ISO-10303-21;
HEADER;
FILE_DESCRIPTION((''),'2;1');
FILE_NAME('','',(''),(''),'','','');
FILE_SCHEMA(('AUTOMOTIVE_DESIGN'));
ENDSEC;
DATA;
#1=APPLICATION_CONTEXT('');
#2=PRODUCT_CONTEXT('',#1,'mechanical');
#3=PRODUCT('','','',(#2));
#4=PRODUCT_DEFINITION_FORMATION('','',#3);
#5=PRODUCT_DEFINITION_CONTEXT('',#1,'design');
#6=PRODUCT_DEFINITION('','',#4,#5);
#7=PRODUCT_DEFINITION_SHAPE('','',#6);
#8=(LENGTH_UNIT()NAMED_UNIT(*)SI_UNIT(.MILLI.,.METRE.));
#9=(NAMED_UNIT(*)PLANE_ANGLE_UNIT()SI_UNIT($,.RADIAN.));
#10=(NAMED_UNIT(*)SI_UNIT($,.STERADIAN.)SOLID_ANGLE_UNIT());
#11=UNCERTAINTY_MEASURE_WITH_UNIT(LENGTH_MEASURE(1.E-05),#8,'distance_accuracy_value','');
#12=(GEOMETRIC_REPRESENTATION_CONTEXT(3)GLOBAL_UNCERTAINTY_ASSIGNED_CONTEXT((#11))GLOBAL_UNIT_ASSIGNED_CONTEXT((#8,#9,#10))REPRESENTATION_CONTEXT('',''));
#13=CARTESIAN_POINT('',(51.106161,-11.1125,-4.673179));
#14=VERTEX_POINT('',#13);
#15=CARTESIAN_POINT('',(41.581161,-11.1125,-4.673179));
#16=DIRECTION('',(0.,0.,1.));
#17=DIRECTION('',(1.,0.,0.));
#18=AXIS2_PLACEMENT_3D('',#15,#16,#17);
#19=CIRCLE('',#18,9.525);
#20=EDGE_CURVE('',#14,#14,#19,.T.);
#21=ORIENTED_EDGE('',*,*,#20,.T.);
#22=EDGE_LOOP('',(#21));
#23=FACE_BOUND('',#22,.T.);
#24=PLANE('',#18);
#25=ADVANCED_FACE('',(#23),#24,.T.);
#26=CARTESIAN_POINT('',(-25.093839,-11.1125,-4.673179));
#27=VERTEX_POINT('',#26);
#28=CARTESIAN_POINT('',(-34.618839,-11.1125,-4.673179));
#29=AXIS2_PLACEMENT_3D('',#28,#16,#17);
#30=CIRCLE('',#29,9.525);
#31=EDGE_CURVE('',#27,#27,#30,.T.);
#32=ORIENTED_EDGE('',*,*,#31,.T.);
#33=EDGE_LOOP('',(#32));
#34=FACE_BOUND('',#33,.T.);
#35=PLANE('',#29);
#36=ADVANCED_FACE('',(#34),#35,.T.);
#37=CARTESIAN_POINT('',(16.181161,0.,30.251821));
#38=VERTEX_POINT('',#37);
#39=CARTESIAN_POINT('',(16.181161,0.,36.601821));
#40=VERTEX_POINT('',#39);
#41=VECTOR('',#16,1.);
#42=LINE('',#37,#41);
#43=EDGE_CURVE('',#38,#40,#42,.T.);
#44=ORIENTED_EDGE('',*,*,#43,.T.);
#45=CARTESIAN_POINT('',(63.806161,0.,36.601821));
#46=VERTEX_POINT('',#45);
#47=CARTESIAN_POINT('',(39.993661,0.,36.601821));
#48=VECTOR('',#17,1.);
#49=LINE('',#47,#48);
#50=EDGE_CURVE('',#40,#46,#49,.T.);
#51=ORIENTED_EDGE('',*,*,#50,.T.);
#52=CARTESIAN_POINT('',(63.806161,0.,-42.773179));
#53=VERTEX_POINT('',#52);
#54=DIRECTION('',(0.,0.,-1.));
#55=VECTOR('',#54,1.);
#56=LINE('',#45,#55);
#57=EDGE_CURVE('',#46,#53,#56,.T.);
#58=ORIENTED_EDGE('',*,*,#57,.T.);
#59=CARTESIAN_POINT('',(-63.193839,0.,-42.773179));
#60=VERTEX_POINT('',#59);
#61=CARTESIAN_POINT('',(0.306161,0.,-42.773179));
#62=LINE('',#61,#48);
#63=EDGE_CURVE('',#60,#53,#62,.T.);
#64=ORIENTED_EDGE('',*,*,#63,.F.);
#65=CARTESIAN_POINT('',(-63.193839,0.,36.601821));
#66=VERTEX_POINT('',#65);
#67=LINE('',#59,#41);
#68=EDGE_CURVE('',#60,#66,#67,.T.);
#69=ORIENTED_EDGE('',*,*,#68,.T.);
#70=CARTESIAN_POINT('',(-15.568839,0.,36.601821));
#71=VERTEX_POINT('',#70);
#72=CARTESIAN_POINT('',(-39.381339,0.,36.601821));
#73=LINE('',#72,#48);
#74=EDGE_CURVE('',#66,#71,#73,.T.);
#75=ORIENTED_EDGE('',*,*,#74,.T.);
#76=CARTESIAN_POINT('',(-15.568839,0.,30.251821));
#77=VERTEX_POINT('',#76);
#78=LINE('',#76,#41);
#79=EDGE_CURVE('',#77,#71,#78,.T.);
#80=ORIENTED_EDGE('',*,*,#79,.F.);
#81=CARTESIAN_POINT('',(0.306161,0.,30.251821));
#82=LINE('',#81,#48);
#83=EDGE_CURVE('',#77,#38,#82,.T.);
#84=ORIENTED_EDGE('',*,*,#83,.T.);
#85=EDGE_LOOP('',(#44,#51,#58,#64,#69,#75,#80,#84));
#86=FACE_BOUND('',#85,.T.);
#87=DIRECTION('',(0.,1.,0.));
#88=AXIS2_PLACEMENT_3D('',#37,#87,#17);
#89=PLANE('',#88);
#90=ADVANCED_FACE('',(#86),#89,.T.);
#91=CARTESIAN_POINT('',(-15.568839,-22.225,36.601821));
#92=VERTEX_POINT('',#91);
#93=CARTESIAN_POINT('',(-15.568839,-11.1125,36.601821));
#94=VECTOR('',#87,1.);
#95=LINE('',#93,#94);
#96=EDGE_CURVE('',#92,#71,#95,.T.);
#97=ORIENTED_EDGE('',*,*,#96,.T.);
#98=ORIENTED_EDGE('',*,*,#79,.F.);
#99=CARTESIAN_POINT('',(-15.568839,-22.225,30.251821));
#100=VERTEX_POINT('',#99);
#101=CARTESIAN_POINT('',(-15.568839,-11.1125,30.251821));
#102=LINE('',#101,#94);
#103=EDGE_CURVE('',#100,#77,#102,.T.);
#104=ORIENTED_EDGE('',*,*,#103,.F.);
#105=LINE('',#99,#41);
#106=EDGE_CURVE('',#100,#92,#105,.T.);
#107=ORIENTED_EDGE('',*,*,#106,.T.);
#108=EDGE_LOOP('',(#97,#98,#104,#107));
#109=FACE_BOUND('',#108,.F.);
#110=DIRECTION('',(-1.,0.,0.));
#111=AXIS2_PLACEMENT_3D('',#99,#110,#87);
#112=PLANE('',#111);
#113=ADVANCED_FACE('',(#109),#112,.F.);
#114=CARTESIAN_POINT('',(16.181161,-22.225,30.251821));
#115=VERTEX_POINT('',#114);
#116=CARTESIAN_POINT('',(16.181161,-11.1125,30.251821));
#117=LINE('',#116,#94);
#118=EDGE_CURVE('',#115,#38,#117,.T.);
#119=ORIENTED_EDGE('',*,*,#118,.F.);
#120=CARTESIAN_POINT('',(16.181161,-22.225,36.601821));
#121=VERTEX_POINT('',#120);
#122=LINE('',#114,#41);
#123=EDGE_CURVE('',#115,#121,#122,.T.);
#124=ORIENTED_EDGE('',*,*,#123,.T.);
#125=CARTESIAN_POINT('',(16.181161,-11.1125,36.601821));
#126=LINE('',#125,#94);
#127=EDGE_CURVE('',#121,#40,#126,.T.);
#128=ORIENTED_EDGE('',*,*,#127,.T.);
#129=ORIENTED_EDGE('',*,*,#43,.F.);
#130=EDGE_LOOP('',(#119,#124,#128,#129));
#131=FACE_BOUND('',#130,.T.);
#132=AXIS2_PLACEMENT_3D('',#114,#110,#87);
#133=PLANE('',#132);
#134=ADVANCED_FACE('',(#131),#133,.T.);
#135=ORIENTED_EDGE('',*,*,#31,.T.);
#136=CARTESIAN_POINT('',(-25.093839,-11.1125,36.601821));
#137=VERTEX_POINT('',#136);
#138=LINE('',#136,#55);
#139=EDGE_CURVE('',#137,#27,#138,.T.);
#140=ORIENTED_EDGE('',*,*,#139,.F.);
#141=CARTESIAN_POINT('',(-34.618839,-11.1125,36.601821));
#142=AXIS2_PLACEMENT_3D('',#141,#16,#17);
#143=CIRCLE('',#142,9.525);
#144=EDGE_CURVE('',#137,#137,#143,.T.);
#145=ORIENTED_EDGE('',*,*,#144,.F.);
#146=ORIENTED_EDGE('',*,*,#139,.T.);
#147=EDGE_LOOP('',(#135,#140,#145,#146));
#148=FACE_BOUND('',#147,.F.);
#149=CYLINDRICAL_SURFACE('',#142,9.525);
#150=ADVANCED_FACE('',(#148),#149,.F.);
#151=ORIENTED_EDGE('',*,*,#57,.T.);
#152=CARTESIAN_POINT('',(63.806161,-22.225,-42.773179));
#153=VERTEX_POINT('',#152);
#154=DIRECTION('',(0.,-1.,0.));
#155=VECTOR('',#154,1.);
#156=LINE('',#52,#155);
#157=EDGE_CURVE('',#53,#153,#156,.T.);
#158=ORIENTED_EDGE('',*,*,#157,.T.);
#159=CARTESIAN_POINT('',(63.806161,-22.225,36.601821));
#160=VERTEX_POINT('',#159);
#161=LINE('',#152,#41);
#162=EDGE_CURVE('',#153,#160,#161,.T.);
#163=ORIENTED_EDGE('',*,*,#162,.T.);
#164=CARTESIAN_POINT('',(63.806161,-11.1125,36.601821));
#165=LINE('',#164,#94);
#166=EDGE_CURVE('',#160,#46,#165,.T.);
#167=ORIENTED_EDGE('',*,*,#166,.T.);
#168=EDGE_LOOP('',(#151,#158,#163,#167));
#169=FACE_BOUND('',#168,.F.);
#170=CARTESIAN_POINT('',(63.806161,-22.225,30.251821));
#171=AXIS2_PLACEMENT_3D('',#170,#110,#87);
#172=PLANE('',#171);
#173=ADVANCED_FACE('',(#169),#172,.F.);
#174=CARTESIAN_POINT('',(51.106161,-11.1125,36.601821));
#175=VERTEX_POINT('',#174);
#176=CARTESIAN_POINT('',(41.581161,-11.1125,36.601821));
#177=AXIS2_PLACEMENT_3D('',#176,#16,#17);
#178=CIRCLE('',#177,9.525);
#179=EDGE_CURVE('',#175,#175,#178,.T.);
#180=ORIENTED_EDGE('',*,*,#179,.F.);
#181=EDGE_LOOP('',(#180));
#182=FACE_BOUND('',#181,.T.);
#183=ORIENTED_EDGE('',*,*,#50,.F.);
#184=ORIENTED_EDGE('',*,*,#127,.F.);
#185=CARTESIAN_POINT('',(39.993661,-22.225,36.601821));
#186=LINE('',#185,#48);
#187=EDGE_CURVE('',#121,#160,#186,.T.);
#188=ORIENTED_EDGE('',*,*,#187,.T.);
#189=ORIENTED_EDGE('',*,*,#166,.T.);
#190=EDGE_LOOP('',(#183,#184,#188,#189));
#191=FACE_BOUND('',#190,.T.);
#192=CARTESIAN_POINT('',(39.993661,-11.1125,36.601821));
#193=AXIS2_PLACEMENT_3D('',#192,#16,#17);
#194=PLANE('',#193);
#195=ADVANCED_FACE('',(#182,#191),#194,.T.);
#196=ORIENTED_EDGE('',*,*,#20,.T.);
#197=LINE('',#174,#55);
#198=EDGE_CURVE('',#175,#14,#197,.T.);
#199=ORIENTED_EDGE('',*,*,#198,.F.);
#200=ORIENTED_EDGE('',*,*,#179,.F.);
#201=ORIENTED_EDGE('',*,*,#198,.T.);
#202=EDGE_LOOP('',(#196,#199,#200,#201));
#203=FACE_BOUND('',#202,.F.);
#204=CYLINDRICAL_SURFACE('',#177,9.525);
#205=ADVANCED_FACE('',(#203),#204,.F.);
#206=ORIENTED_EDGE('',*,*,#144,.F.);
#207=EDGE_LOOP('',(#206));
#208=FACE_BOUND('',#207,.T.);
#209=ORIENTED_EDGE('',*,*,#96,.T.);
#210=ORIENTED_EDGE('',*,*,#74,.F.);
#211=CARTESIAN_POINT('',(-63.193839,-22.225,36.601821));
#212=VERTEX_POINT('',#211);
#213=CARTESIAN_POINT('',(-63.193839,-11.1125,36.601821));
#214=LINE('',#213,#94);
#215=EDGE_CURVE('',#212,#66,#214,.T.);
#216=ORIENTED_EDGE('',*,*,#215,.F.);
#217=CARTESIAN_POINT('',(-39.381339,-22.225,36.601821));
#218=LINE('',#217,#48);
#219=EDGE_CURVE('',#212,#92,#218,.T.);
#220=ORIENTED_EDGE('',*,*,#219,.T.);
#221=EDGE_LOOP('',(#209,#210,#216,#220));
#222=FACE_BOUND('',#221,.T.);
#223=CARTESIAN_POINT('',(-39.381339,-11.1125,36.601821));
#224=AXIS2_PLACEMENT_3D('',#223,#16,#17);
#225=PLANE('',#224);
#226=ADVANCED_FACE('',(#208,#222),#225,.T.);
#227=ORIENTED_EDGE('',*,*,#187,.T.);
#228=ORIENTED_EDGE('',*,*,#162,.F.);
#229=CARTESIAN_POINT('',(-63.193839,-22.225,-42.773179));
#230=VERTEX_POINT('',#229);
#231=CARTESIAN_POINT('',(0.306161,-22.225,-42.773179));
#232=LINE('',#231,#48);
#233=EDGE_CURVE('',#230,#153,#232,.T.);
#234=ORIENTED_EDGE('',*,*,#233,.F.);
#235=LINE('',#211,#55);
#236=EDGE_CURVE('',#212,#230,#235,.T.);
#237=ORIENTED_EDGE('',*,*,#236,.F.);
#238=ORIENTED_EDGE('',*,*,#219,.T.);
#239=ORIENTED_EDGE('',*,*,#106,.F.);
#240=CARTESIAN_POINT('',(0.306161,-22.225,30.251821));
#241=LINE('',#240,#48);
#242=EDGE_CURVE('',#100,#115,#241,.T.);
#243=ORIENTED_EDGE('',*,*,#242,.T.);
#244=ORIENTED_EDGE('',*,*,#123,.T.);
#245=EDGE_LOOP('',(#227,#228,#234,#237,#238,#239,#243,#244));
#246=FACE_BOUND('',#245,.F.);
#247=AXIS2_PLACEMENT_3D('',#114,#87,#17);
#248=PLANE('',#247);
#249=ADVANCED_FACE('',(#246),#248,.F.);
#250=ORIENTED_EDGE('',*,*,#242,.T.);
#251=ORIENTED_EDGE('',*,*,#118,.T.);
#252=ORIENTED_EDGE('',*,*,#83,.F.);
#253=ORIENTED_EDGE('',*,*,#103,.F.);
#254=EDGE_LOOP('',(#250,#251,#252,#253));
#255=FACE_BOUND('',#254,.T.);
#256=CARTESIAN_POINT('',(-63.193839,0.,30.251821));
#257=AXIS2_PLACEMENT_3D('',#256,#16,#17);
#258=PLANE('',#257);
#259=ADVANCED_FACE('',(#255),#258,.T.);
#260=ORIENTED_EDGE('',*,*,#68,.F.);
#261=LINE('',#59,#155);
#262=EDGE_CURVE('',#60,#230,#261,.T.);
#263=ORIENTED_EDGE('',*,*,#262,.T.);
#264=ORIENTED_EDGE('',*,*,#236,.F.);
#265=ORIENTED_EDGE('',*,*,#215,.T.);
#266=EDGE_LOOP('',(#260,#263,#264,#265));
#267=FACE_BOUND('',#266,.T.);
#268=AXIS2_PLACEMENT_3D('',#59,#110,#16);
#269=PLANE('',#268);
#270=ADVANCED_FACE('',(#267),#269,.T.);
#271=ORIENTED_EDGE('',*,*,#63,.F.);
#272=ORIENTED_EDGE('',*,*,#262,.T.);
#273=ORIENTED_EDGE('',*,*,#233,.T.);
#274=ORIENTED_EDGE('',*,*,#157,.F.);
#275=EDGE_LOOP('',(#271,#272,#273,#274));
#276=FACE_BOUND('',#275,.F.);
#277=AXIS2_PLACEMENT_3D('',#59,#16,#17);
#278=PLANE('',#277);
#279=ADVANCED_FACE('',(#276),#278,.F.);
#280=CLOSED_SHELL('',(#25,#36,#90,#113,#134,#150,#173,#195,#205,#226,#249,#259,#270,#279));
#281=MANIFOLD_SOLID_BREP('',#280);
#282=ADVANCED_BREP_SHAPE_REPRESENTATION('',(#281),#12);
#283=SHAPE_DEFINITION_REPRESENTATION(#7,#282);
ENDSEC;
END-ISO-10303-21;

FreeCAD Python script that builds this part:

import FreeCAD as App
import Part
import Sketcher

V = App.Vector
Q = App.Units.Quantity


def add_polygon(sketch, points):
    """Adds a closed chain of lines whose ends are joined by coincident constraints."""
    first, n = sketch.GeometryCount, len(points)
    for a, b in zip(points, points[1:] + points[:1]):
        sketch.addGeometry(Part.LineSegment(App.Vector(*a, 0), App.Vector(*b, 0)), False)
    for i in range(n):
        sketch.addConstraint(Sketcher.Constraint("Coincident", first + i, 2, first + (i + 1) % n, 1))

doc = App.newDocument("Part")
params = doc.addObject("Spreadsheet::Sheet", "Params")
for row, (alias, value) in enumerate([
    ("sketch1_width", "5 in"),
    ("sketch1_height", "2.875 in"),
    ("pad1_length", "0.875 in"),
    ("sketch2_width", "1.875 in"),
    ("sketch2_height", "0.875 in"),
    ("pad2_length", "0.25 in"),
    ("sketch3_diameter", "0.75 in"),
    ("pocket1_length", "1.625 in"),
], start=1):
    params.set(f"A{row}", alias)
    params.set(f"B{row}", "=" + value)
    params.setAlias(f"B{row}", alias)

body = doc.addObject("PartDesign::Body", "Body")

sketch1 = body.newObject("Sketcher::SketchObject", "Sketch")
sketch1.AttachmentSupport = (doc.getObject("XZ_Plane"), [""])
sketch1.MapMode = "FlatFace"
add_polygon(sketch1, [(-63, 30), (-63, -43), (64, -43), (64, 30)])
sketch1.addConstraint(Sketcher.Constraint("Vertical", 0))
sketch1.addConstraint(Sketcher.Constraint("Horizontal", 1))
sketch1.addConstraint(Sketcher.Constraint("Vertical", 2))
sketch1.addConstraint(Sketcher.Constraint("Horizontal", 3))
sketch1.addConstraint(Sketcher.Constraint("DistanceX", 1, 1, 1, 2, Q("5 in")))
sketch1.addConstraint(Sketcher.Constraint("DistanceY", 0, 2, 0, 1, Q("2.875 in")))
sketch1.addConstraint(Sketcher.Constraint("DistanceX", 0, 2, -1, 1, Q("63.193839 mm")))
sketch1.addConstraint(Sketcher.Constraint("DistanceY", 0, 2, -1, 1, Q("42.773179 mm")))
sketch1.setExpression("Constraints[8]", "Params.sketch1_width")
sketch1.setExpression("Constraints[9]", "Params.sketch1_height")
pad1 = body.newObject("PartDesign::Pad", "Pad")
pad1.Profile = sketch1
pad1.setExpression("Length", "Params.pad1_length")

sketch2 = body.newObject("Sketcher::SketchObject", "Sketch001")
sketch2.AttachmentSupport = (doc.getObject("XY_Plane"), [""])
sketch2.MapMode = "FlatFace"
sketch2.AttachmentOffset = App.Placement(V(0, 0, 30.251821), App.Rotation())
add_polygon(sketch2, [(16, 0), (16, -22), (64, -22), (64, 0)])
add_polygon(sketch2, [(-63, 0), (-63, -22), (-16, -22), (-16, 0)])
sketch2.addConstraint(Sketcher.Constraint("Vertical", 0))
sketch2.addConstraint(Sketcher.Constraint("Horizontal", 1))
sketch2.addConstraint(Sketcher.Constraint("Vertical", 2))
sketch2.addConstraint(Sketcher.Constraint("Horizontal", 3))
sketch2.addConstraint(Sketcher.Constraint("Vertical", 4))
sketch2.addConstraint(Sketcher.Constraint("Horizontal", 5))
sketch2.addConstraint(Sketcher.Constraint("Vertical", 6))
sketch2.addConstraint(Sketcher.Constraint("Horizontal", 7))
sketch2.addConstraint(Sketcher.Constraint("PointOnObject", 2, 2, -1))
sketch2.addConstraint(Sketcher.Constraint("PointOnObject", 6, 2, -1))
sketch2.addConstraint(Sketcher.Constraint("Horizontal", 1, 2, 4, 2))
sketch2.addConstraint(Sketcher.Constraint("Equal", 3, 5))
sketch2.addConstraint(Sketcher.Constraint("DistanceX", 4, 2, 1, 2, Q("5 in")))
sketch2.addConstraint(Sketcher.Constraint("DistanceX", 1, 1, 1, 2, Q("1.875 in")))
sketch2.addConstraint(Sketcher.Constraint("DistanceY", 0, 2, 0, 1, Q("0.875 in")))
sketch2.addConstraint(Sketcher.Constraint("DistanceX", -1, 1, 0, 2, Q("16.181161 mm")))
sketch2.setExpression("Constraints[21]", "Params.sketch2_width")
sketch2.setExpression("Constraints[22]", "Params.sketch2_height")
pad2 = body.newObject("PartDesign::Pad", "Pad001")
pad2.Profile = sketch2
pad2.setExpression("Length", "Params.pad2_length")

sketch3 = body.newObject("Sketcher::SketchObject", "Sketch002")
sketch3.AttachmentSupport = (doc.getObject("XY_Plane"), [""])
sketch3.MapMode = "FlatFace"
sketch3.AttachmentOffset = App.Placement(V(0, 0, 36.601821), App.Rotation())
sketch3.addGeometry(Part.Circle(V(-35, -11, 0), V(0, 0, 1), 10), False)
sketch3.addGeometry(Part.Circle(V(42, -11, 0), V(0, 0, 1), 10), False)
sketch3.addConstraint(Sketcher.Constraint("Equal", 0, 1))
sketch3.addConstraint(Sketcher.Constraint("Horizontal", 0, 3, 1, 3))
sketch3.addConstraint(Sketcher.Constraint("Diameter", 0, Q("0.75 in")))
sketch3.addConstraint(Sketcher.Constraint("DistanceX", 0, 3, 1, 3, Q("3 in")))
sketch3.addConstraint(Sketcher.Constraint("DistanceY", 0, 3, -1, 1, Q("0.4375 in")))
sketch3.addConstraint(Sketcher.Constraint("DistanceX", 0, 3, -1, 1, Q("34.618839 mm")))
sketch3.setExpression("Constraints[2]", "Params.sketch3_diameter")
pocket1 = body.newObject("PartDesign::Pocket", "Pocket")
pocket1.Profile = sketch3
pocket1.setExpression("Length", "Params.pocket1_length")

doc.recompute()
